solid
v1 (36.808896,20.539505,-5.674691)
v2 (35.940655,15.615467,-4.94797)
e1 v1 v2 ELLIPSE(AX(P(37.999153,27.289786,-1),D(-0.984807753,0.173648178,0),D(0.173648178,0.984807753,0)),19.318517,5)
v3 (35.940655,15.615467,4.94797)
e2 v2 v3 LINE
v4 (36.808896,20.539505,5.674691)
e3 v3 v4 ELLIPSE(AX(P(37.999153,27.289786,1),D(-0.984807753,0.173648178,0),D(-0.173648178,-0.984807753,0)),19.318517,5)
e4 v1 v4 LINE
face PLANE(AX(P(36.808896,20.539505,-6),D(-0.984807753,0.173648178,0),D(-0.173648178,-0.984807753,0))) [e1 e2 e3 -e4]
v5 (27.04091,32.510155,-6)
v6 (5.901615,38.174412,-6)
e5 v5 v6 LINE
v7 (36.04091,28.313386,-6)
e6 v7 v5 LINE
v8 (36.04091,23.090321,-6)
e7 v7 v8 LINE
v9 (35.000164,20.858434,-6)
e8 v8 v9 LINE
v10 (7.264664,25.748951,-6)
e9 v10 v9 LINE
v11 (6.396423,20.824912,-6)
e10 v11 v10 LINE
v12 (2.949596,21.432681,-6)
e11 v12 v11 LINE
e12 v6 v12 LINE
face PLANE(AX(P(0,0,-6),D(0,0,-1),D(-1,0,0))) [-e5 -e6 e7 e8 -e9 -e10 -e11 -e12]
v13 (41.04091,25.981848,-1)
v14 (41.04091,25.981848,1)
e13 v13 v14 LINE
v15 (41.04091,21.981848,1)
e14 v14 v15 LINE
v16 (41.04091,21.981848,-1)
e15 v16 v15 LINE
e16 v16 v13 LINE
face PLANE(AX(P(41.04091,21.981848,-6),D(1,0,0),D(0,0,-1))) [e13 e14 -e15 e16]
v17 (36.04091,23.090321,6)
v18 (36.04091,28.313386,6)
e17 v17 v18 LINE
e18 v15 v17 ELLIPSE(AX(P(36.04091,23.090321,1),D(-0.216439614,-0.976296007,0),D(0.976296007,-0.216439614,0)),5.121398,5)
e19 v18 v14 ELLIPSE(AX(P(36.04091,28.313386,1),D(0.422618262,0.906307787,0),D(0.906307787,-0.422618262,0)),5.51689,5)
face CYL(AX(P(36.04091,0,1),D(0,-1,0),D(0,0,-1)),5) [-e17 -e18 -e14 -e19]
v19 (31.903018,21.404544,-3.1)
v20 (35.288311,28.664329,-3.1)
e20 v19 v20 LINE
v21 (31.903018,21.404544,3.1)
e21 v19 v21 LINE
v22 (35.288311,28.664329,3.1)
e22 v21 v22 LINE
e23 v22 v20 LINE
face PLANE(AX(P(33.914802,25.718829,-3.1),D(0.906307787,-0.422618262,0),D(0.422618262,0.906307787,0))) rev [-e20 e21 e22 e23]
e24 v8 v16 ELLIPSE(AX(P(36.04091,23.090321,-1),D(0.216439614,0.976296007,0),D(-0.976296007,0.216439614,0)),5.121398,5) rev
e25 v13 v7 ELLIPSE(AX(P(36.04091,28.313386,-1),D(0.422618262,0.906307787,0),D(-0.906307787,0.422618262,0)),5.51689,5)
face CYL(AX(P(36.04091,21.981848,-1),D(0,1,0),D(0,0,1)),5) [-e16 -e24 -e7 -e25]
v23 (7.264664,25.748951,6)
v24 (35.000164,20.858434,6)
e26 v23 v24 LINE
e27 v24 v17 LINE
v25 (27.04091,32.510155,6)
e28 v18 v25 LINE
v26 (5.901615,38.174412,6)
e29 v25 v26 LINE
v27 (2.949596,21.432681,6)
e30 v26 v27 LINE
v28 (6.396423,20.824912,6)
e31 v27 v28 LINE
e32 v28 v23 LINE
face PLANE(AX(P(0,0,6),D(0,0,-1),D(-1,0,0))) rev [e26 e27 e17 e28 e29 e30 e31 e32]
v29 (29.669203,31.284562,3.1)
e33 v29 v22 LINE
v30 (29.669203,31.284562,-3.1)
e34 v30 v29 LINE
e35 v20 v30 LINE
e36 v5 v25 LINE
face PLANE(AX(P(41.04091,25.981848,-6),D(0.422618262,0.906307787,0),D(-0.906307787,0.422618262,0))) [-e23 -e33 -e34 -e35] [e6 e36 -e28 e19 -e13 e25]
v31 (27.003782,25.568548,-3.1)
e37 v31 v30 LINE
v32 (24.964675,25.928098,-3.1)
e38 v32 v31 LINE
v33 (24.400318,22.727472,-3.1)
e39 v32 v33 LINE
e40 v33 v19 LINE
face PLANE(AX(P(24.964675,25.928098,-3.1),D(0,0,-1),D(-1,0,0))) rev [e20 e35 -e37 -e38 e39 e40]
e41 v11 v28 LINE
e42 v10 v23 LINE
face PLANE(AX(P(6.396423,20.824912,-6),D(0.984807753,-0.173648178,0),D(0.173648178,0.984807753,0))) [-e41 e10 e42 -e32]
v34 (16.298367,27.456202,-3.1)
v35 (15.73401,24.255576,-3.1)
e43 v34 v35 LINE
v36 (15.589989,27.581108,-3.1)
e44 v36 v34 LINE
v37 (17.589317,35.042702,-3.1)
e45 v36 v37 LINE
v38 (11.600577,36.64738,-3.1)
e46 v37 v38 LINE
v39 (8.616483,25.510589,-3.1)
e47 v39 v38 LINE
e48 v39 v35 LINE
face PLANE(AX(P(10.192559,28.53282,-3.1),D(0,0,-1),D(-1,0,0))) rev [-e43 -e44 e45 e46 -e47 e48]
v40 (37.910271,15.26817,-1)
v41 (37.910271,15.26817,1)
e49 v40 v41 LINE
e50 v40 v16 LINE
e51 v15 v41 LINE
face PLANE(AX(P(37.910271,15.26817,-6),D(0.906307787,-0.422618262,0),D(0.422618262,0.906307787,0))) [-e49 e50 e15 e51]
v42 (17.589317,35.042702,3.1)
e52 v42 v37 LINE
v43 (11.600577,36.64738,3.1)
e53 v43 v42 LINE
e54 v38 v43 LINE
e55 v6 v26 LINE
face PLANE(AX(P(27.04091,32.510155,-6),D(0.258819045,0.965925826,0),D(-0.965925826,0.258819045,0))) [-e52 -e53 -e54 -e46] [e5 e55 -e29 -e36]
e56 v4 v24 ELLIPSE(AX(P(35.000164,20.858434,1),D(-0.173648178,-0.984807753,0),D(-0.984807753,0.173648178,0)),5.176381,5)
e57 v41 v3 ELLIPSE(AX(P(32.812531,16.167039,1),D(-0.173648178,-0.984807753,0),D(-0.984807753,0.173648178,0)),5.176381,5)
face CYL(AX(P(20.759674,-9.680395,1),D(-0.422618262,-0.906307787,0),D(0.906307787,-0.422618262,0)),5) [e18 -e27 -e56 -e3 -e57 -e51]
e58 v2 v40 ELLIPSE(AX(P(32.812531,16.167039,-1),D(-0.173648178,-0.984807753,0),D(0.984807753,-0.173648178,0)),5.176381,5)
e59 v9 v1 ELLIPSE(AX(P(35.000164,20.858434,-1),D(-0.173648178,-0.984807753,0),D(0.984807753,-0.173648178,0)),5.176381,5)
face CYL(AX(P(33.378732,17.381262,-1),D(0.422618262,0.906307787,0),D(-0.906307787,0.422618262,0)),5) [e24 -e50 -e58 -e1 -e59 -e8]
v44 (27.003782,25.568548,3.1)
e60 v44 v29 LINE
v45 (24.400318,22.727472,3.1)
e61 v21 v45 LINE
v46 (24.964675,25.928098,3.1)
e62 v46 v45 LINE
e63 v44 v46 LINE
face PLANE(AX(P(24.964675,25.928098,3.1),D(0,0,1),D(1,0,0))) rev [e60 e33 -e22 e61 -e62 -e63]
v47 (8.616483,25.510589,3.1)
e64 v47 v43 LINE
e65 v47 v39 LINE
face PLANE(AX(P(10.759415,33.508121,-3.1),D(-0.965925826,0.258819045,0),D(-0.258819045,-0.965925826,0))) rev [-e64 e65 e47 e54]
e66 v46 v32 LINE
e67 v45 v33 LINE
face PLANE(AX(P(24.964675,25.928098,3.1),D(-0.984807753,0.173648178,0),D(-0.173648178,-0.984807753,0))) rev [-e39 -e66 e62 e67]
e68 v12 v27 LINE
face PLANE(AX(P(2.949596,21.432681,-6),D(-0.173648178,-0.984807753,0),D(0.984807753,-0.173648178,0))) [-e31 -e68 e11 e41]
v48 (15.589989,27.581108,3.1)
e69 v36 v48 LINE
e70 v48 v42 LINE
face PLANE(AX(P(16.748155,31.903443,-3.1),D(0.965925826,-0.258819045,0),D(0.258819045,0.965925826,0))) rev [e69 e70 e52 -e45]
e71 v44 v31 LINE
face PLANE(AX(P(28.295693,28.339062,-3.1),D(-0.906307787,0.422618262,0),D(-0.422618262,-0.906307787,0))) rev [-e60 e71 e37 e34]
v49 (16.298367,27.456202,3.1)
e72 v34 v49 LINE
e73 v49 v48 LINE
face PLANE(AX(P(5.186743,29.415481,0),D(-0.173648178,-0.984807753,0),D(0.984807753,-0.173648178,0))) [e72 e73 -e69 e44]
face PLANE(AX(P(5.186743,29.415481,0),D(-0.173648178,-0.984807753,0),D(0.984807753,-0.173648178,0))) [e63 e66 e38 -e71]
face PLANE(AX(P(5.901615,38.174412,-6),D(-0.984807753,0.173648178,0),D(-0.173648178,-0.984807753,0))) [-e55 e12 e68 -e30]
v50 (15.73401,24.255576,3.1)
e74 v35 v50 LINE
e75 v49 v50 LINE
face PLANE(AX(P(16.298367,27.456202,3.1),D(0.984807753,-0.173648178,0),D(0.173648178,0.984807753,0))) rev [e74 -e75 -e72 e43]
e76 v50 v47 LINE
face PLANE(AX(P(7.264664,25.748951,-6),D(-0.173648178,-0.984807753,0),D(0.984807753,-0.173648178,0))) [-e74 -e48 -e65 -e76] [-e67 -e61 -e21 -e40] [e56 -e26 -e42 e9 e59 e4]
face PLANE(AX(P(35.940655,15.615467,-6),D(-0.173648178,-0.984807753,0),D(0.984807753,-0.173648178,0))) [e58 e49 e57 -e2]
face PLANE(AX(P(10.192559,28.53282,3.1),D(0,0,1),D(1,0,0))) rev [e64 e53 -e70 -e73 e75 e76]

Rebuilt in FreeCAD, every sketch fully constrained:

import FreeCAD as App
import Part
import Sketcher
from FreeCAD import Vector
Q = App.Units.Quantity


def edges_at(feature, points):
    """Names of the edges that pass closest to the given points."""
    edges = feature.Shape.Edges
    near = lambda p: min(range(len(edges)), key=lambda i: edges[i].distToShape(Part.Vertex(*p))[0])
    return sorted({f"Edge{near(p) + 1}" for p in points})


def add_polygon(sketch, points):
    """Adds a closed chain of lines whose ends are joined by coincident constraints."""
    first, n = sketch.GeometryCount, len(points)
    for a, b in zip(points, points[1:] + points[:1]):
        sketch.addGeometry(Part.LineSegment(App.Vector(*a, 0), App.Vector(*b, 0)), False)
    for i in range(n):
        sketch.addConstraint(Sketcher.Constraint("Coincident", first + i, 2, first + (i + 1) % n, 1))

doc = App.newDocument("Part")
body = doc.addObject("PartDesign::Body", "Body")

sketch1 = body.newObject("Sketcher::SketchObject", "Sketch")
sketch1.AttachmentSupport = (doc.getObject("XY_Plane"), [""])
sketch1.MapMode = "FlatFace"
add_polygon(sketch1, [(5.901615, 38.174412), (2.949596, 21.432681), (6.396423, 20.824912), (7.264664, 25.748951), (36.808896, 20.539505), (35.940655, 15.615467), (37.910271, 15.26817), (41.04091, 21.981848), (41.04091, 25.981848), (27.04091, 32.510155)])
sketch1.addConstraint([
    Sketcher.Constraint("Vertical", 7),
    Sketcher.Constraint("Perpendicular", 0, 1),
    Sketcher.Constraint("Perpendicular", 1, 2),
    Sketcher.Constraint("Perpendicular", 2, 3),
    Sketcher.Constraint("Perpendicular", 3, 4),
    Sketcher.Constraint("Perpendicular", 4, 5),
    Sketcher.Constraint("Perpendicular", 6, 8),
    Sketcher.Constraint("Equal", 2, 4),
    Sketcher.Constraint("DistanceY", 7, 1, 7, 2, Q("4 mm")),
    Sketcher.Constraint("Angle", 0, Q("-100 deg")),
    Sketcher.Constraint("Angle", 6, Q("65 deg")),
    Sketcher.Constraint("Angle", 9, Q("165 deg")),
    Sketcher.Constraint("Distance", 0, Q("17 mm")),
    Sketcher.Constraint("Distance", 2, Q("5 mm")),
    Sketcher.Constraint("Distance", 3, Q("30 mm")),
    Sketcher.Constraint("Distance", 5, Q("2 mm")),
    Sketcher.Constraint("DistanceX", 8, 2, 7, 2, Q("14 mm")),
    Sketcher.Constraint("Distance", 1, Q("3.5 mm")),
    Sketcher.Constraint("DistanceY", -1, 1, 0, 2, Q("21.432681 mm")),
    Sketcher.Constraint("DistanceX", -1, 1, 5, 2, Q("37.910271 mm")),
])
pad1 = body.newObject("PartDesign::Pad", "Pad")
pad1.Profile = sketch1
pad1.Type = "TwoLengths"
pad1.Length = 6
pad1.Length2 = 6

sketch2 = body.newObject("Sketcher::SketchObject", "Sketch001")
sketch2.Placement = App.Placement(Vector(4.622386, 26.214856, 0), App.Rotation(Vector(0.984807753, -0.173648178, 0), Vector(0, 0, 1), Vector(-0.173648178, -0.984807753, 0), "ZXY"))
add_polygon(sketch2, [(5.083039, 3.1), (5.083039, -3.1), (11.283039, -3.1), (11.283039, 3.1)])
add_polygon(sketch2, [(20.083039, 3.1), (20.083039, -3.1), (26.283039, -3.1), (26.283039, 3.1)])
sketch2.addConstraint([
    Sketcher.Constraint("Vertical", 0),
    Sketcher.Constraint("Horizontal", 1),
    Sketcher.Constraint("Vertical", 2),
    Sketcher.Constraint("Horizontal", 3),
    Sketcher.Constraint("Vertical", 4),
    Sketcher.Constraint("Horizontal", 5),
    Sketcher.Constraint("Vertical", 6),
    Sketcher.Constraint("Horizontal", 7),
    Sketcher.Constraint("Horizontal", 1, 2, 4, 2),
    Sketcher.Constraint("Horizontal", 3, 2, 6, 2),
    Sketcher.Constraint("Equal", 3, 5),
    Sketcher.Constraint("Equal", 7, 0),
    Sketcher.Constraint("DistanceX", 1, 1, 1, 2, Q("6.2 mm")),
    Sketcher.Constraint("DistanceX", 0, 2, 4, 2, Q("15 mm")),
    Sketcher.Constraint("DistanceY", 0, 2, -1, 1, Q("3.1 mm")),
    Sketcher.Constraint("DistanceX", -1, 1, 0, 2, Q("5.083039 mm")),
])
pocket1 = body.newObject("PartDesign::Pocket", "Pocket")
pocket1.Profile = sketch2
pocket1.Length = 3.25

sketch3 = body.newObject("Sketcher::SketchObject", "Sketch002")
sketch3.Placement = App.Placement(Vector(9.938936, 37.092615, 0), App.Rotation(Vector(0.965925826, -0.258819045, 0), Vector(0, 0, -0.999999999), Vector(0.258819045, 0.965925826, 0), "ZXY"))
add_polygon(sketch3, [(1.720257, 3.1), (1.720257, -3.1), (7.920257, -3.1), (7.920257, 3.1)])
sketch3.addConstraint([
    Sketcher.Constraint("Vertical", 0),
    Sketcher.Constraint("Horizontal", 1),
    Sketcher.Constraint("Vertical", 2),
    Sketcher.Constraint("Horizontal", 3),
    Sketcher.Constraint("Equal", 3, 0),
    Sketcher.Constraint("DistanceX", 1, 1, 1, 2, Q("6.2 mm")),
    Sketcher.Constraint("DistanceY", 0, 2, -1, 1, Q("3.1 mm")),
    Sketcher.Constraint("DistanceX", -1, 1, 0, 2, Q("1.720257 mm")),
])
pocket2 = body.newObject("PartDesign::Pocket", "Pocket001")
pocket2.Profile = sketch3
pocket2.Length = 3.25

sketch4 = body.newObject("Sketcher::SketchObject", "Sketch003")
sketch4.Placement = App.Placement(Vector(17.281786, 37.06091, 0), App.Rotation(Vector(0.906307787, -0.422618262, 0), Vector(0, 0, -1), Vector(0.422618262, 0.906307787, 0), "ZXY"))
add_polygon(sketch4, [(13.668002, 3.1), (13.668002, -3.1), (19.868002, -3.1), (19.868002, 3.1)])
sketch4.addConstraint([
    Sketcher.Constraint("Vertical", 0),
    Sketcher.Constraint("Horizontal", 1),
    Sketcher.Constraint("Vertical", 2),
    Sketcher.Constraint("Horizontal", 3),
    Sketcher.Constraint("Equal", 3, 0),
    Sketcher.Constraint("DistanceX", 1, 1, 1, 2, Q("6.2 mm")),
    Sketcher.Constraint("DistanceY", 0, 2, -1, 1, Q("3.1 mm")),
    Sketcher.Constraint("DistanceX", -1, 1, 0, 2, Q("13.668002 mm")),
])
pocket3 = body.newObject("PartDesign::Pocket", "Pocket002")
pocket3.Profile = sketch4
pocket3.Length = 3.25
doc.recompute()

fillet = body.newObject("PartDesign::Fillet", "Fillet")
fillet.Base = (pocket3, edges_at(pocket3, [
    (39.476, 18.625, -6),
    (41.041, 23.982, -6),
    (39.476, 18.625, 6),
    (41.041, 23.982, 6),
]))
fillet.Radius = 5

sketch5 = body.newObject("Sketcher::SketchObject", "Sketch004")
sketch5.Placement = App.Placement(Vector(9.097774, 33.953356, 0), App.Rotation(Vector(0.965925826, -0.258819045, 0), Vector(0, 0, -0.999999999), Vector(0.258819045, 0.965925826, 0), "ZXY"))
add_polygon(sketch5, [(1.720257, 3.1), (1.720257, -3.1), (7.920257, -3.1), (7.920257, 3.1)])
sketch5.addConstraint([
    Sketcher.Constraint("Vertical", 0),
    Sketcher.Constraint("Horizontal", 1),
    Sketcher.Constraint("Vertical", 2),
    Sketcher.Constraint("Horizontal", 3),
    Sketcher.Constraint("Equal", 3, 0),
    Sketcher.Constraint("DistanceX", 1, 1, 1, 2, Q("6.2 mm")),
    Sketcher.Constraint("DistanceY", 0, 2, -1, 1, Q("3.1 mm")),
    Sketcher.Constraint("DistanceX", -1, 1, 0, 2, Q("1.720257 mm")),
])
pocket4 = body.newObject("PartDesign::Pocket", "Pocket003")
pocket4.Profile = sketch5
pocket4.Type = "ThroughAll"

sketch6 = body.newObject("Sketcher::SketchObject", "Sketch005")
sketch6.Placement = App.Placement(Vector(15.908277, 34.115409, 0), App.Rotation(Vector(0.906307787, -0.422618262, 0), Vector(0, 0, -1), Vector(0.422618262, 0.906307787, 0), "ZXY"))
add_polygon(sketch6, [(13.668002, 3.1), (13.668002, -3.1), (19.868002, -3.1), (19.868002, 3.1)])
sketch6.addConstraint([
    Sketcher.Constraint("Vertical", 0),
    Sketcher.Constraint("Horizontal", 1),
    Sketcher.Constraint("Vertical", 2),
    Sketcher.Constraint("Horizontal", 3),
    Sketcher.Constraint("Equal", 3, 0),
    Sketcher.Constraint("DistanceX", 1, 1, 1, 2, Q("6.2 mm")),
    Sketcher.Constraint("DistanceY", 0, 2, -1, 1, Q("3.1 mm")),
    Sketcher.Constraint("DistanceX", -1, 1, 0, 2, Q("13.668002 mm")),
])
pocket5 = body.newObject("PartDesign::Pocket", "Pocket004")
pocket5.Profile = sketch6
pocket5.Type = "ThroughAll"

doc.recompute()
